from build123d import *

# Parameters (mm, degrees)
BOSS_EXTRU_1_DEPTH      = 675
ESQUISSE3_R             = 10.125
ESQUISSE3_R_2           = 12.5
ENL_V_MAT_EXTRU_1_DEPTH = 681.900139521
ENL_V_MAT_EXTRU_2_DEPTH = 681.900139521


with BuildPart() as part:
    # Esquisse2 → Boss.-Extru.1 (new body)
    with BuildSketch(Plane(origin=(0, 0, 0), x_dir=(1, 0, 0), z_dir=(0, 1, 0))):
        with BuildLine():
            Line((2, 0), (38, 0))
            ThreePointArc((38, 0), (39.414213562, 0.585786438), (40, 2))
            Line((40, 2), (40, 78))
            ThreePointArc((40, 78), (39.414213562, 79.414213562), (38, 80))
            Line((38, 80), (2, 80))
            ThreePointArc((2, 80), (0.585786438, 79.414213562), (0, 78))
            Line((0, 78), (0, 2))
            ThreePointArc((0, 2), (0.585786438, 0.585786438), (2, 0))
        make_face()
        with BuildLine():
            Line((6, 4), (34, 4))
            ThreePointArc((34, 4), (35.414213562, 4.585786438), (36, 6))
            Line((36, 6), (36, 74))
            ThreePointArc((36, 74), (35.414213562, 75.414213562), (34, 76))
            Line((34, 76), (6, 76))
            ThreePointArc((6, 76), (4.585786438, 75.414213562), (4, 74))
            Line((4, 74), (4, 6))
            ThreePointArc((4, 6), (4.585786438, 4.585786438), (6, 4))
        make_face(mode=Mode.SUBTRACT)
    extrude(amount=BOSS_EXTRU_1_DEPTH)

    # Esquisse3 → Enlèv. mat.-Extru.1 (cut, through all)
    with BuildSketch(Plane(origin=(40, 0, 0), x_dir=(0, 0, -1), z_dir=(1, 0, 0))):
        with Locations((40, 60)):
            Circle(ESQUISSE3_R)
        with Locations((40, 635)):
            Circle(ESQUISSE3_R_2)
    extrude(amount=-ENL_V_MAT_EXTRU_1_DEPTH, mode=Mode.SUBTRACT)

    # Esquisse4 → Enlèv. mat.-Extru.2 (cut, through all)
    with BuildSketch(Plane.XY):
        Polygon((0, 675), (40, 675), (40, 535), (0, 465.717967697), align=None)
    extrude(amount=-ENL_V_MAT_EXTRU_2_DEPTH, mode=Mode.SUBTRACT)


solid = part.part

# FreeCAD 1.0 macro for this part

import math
import FreeCAD as App
import Part
import Sketcher
from FreeCAD import Vector
Q = App.Units.Quantity

doc = App.newDocument("Part")
params = doc.addObject("Spreadsheet::Sheet", "Params")
for row, (alias, value) in enumerate([
    ("sketch1_radius", "2 mm"),
    ("sketch1_width", "36 mm"),
    ("sketch1_width2", "28 mm"),
    ("sketch1_height", "76 mm"),
    ("sketch1_height2", "68 mm"),
    ("pad1_length", "675 mm"),
    ("sketch2_diameter", "25 mm"),
    ("sketch2_diameter2", "20.25 mm"),
    ("sketch3_width", "40 mm"),
    ("sketch3_height", "140 mm"),
], start=1):
    params.set(f"A{row}", alias)
    params.set(f"B{row}", "=" + value)
    params.setAlias(f"B{row}", alias)

body = doc.addObject("PartDesign::Body", "Body")

# Sketch on XZ plane
sketch1 = body.newObject("Sketcher::SketchObject", "Sketch")
sketch1.AttachmentSupport = (doc.getObject("XZ_Plane"), [""])
sketch1.MapMode = "FlatFace"
sketch1.addGeometry([
    Part.LineSegment(Vector(2, 0, 0), Vector(38, 0, 0)),  # 0
    Part.ArcOfCircle(Part.Circle(Vector(38, -2, 0), Vector(0, 0, 1), 2), math.radians(0), math.radians(90)),  # 1
    Part.LineSegment(Vector(40, -2, 0), Vector(40, -78, 0)),  # 2
    Part.ArcOfCircle(Part.Circle(Vector(38, -78, 0), Vector(0, 0, 1), 2), math.radians(-90), math.radians(0)),  # 3
    Part.LineSegment(Vector(38, -80, 0), Vector(2, -80, 0)),  # 4
    Part.ArcOfCircle(Part.Circle(Vector(2, -78, 0), Vector(0, 0, 1), 2), math.radians(-180), math.radians(-90)),  # 5
    Part.LineSegment(Vector(0, -78, 0), Vector(0, -2, 0)),  # 6
    Part.ArcOfCircle(Part.Circle(Vector(2, -2, 0), Vector(0, 0, 1), 2), math.radians(90), math.radians(180)),  # 7
    Part.LineSegment(Vector(34, -4, 0), Vector(6, -4, 0)),  # 8
    Part.ArcOfCircle(Part.Circle(Vector(6, -6, 0), Vector(0, 0, 1), 2), math.radians(90), math.radians(180)),  # 9
    Part.LineSegment(Vector(4, -6, 0), Vector(4, -74, 0)),  # 10
    Part.ArcOfCircle(Part.Circle(Vector(6, -74, 0), Vector(0, 0, 1), 2), math.radians(-180), math.radians(-90)),  # 11
    Part.LineSegment(Vector(6, -76, 0), Vector(34, -76, 0)),  # 12
    Part.ArcOfCircle(Part.Circle(Vector(34, -74, 0), Vector(0, 0, 1), 2), math.radians(-90), math.radians(0)),  # 13
    Part.LineSegment(Vector(36, -74, 0), Vector(36, -6, 0)),  # 14
    Part.ArcOfCircle(Part.Circle(Vector(34, -6, 0), Vector(0, 0, 1), 2), math.radians(0), math.radians(90)),  # 15
], False)
sketch1.addConstraint([
    Sketcher.Constraint("Tangent", 0, 2, 1, 2),
    Sketcher.Constraint("Tangent", 1, 1, 2, 1),
    Sketcher.Constraint("Tangent", 2, 2, 3, 2),
    Sketcher.Constraint("Tangent", 3, 1, 4, 1),
    Sketcher.Constraint("Tangent", 4, 2, 5, 2),
    Sketcher.Constraint("Tangent", 5, 1, 6, 1),
    Sketcher.Constraint("Tangent", 6, 2, 7, 2),
    Sketcher.Constraint("Tangent", 7, 1, 0, 1),
    Sketcher.Constraint("Tangent", 8, 2, 9, 1),
    Sketcher.Constraint("Tangent", 9, 2, 10, 1),
    Sketcher.Constraint("Tangent", 10, 2, 11, 1),
    Sketcher.Constraint("Tangent", 11, 2, 12, 1),
    Sketcher.Constraint("Tangent", 12, 2, 13, 1),
    Sketcher.Constraint("Tangent", 13, 2, 14, 1),
    Sketcher.Constraint("Tangent", 14, 2, 15, 1),
    Sketcher.Constraint("Tangent", 15, 2, 8, 1),
    Sketcher.Constraint("Horizontal", 0),
    Sketcher.Constraint("Vertical", 2),
    Sketcher.Constraint("Horizontal", 4),
    Sketcher.Constraint("Vertical", 6),
    Sketcher.Constraint("Horizontal", 8),
    Sketcher.Constraint("Vertical", 10),
    Sketcher.Constraint("Horizontal", 12),
    Sketcher.Constraint("Vertical", 14),
    Sketcher.Constraint("Equal", 1, 3),
    Sketcher.Constraint("Equal", 3, 5),
    Sketcher.Constraint("Equal", 5, 7),
    Sketcher.Constraint("Equal", 7, 9),
    Sketcher.Constraint("Equal", 9, 11),
    Sketcher.Constraint("Equal", 11, 13),
    Sketcher.Constraint("Equal", 13, 15),
    Sketcher.Constraint("PointOnObject", 0, 2, -1),
    Sketcher.Constraint("PointOnObject", 5, 1, -2),
    Sketcher.Constraint("Radius", 1, Q("2 mm")),
    Sketcher.Constraint("DistanceX", 0, 1, 0, 2, Q("36 mm")),
    Sketcher.Constraint("DistanceX", 8, 2, 8, 1, Q("28 mm")),
    Sketcher.Constraint("DistanceY", 2, 2, 2, 1, Q("76 mm")),
    Sketcher.Constraint("DistanceY", 10, 2, 10, 1, Q("68 mm")),
    Sketcher.Constraint("DistanceX", -1, 1, 9, 3, Q("6 mm")),
    Sketcher.Constraint("DistanceY", 9, 3, -1, 1, Q("6 mm")),
])
sketch1.setExpression("Constraints[33]", "Params.sketch1_radius")
sketch1.setExpression("Constraints[34]", "Params.sketch1_width")
sketch1.setExpression("Constraints[35]", "Params.sketch1_width2")
sketch1.setExpression("Constraints[36]", "Params.sketch1_height")
sketch1.setExpression("Constraints[37]", "Params.sketch1_height2")
pad1 = body.newObject("PartDesign::Pad", "Pad")
pad1.Profile = sketch1
pad1.setExpression("Length", "Params.pad1_length")
pad1.Reversed = True

# Sketch on YZ plane
sketch2 = body.newObject("Sketcher::SketchObject", "Sketch001")
sketch2.AttachmentSupport = (doc.getObject("YZ_Plane"), [""])
sketch2.MapMode = "FlatFace"
sketch2.AttachmentOffset = App.Placement(Vector(0, 0, 40), App.Rotation())
sketch2.addGeometry([
    Part.Circle(Vector(60, -40, 0), Vector(0, 0, 1), 10),
    Part.Circle(Vector(635, -40, 0), Vector(0, 0, 1), 12),
], False)
sketch2.addConstraint([
    Sketcher.Constraint("Horizontal", 0, 3, 1, 3),
    Sketcher.Constraint("Diameter", 1, Q("25 mm")),
    Sketcher.Constraint("Diameter", 0, Q("20.25 mm")),
    Sketcher.Constraint("DistanceX", -1, 1, 0, 3, Q("60 mm")),
    Sketcher.Constraint("DistanceY", 0, 3, -1, 1, Q("40 mm")),
    Sketcher.Constraint("DistanceX", -1, 1, 1, 3, Q("635 mm")),
])
sketch2.setExpression("Constraints[1]", "Params.sketch2_diameter")
sketch2.setExpression("Constraints[2]", "Params.sketch2_diameter2")
pocket1 = body.newObject("PartDesign::Pocket", "Pocket")
pocket1.Profile = sketch2
pocket1.Type = "ThroughAll"

# Sketch on XY plane
sketch3 = body.newObject("Sketcher::SketchObject", "Sketch002")
sketch3.AttachmentSupport = (doc.getObject("XY_Plane"), [""])
sketch3.MapMode = "FlatFace"
sketch3.addGeometry([
    Part.LineSegment(Vector(40, 675, 0), Vector(0, 675, 0)),
    Part.LineSegment(Vector(0, 675, 0), Vector(0, 466, 0)),
    Part.LineSegment(Vector(0, 466, 0), Vector(40, 535, 0)),
    Part.LineSegment(Vector(40, 535, 0), Vector(40, 675, 0)),
], False)
sketch3.addConstraint([
    Sketcher.Constraint("Coincident", 0, 2, 1, 1),
    Sketcher.Constraint("Coincident", 1, 2, 2, 1),
    Sketcher.Constraint("Coincident", 2, 2, 3, 1),
    Sketcher.Constraint("Coincident", 3, 2, 0, 1),
    Sketcher.Constraint("Horizontal", 0),
    Sketcher.Constraint("Vertical", 1),
    Sketcher.Constraint("Vertical", 3),
    Sketcher.Constraint("PointOnObject", 0, 2, -2),
    Sketcher.Constraint("DistanceX", 0, 2, 0, 1, Q("40 mm")),
    Sketcher.Constraint("DistanceY", 3, 1, 3, 2, Q("140 mm")),
    Sketcher.Constraint("Angle", 2, Q("60 deg")),
    Sketcher.Constraint("DistanceY", -1, 1, 0, 2, Q("675 mm")),
])
sketch3.setExpression("Constraints[8]", "Params.sketch3_width")
sketch3.setExpression("Constraints[9]", "Params.sketch3_height")
pocket2 = body.newObject("PartDesign::Pocket", "Pocket001")
pocket2.Profile = sketch3
pocket2.Type = "ThroughAll"

doc.recompute()
